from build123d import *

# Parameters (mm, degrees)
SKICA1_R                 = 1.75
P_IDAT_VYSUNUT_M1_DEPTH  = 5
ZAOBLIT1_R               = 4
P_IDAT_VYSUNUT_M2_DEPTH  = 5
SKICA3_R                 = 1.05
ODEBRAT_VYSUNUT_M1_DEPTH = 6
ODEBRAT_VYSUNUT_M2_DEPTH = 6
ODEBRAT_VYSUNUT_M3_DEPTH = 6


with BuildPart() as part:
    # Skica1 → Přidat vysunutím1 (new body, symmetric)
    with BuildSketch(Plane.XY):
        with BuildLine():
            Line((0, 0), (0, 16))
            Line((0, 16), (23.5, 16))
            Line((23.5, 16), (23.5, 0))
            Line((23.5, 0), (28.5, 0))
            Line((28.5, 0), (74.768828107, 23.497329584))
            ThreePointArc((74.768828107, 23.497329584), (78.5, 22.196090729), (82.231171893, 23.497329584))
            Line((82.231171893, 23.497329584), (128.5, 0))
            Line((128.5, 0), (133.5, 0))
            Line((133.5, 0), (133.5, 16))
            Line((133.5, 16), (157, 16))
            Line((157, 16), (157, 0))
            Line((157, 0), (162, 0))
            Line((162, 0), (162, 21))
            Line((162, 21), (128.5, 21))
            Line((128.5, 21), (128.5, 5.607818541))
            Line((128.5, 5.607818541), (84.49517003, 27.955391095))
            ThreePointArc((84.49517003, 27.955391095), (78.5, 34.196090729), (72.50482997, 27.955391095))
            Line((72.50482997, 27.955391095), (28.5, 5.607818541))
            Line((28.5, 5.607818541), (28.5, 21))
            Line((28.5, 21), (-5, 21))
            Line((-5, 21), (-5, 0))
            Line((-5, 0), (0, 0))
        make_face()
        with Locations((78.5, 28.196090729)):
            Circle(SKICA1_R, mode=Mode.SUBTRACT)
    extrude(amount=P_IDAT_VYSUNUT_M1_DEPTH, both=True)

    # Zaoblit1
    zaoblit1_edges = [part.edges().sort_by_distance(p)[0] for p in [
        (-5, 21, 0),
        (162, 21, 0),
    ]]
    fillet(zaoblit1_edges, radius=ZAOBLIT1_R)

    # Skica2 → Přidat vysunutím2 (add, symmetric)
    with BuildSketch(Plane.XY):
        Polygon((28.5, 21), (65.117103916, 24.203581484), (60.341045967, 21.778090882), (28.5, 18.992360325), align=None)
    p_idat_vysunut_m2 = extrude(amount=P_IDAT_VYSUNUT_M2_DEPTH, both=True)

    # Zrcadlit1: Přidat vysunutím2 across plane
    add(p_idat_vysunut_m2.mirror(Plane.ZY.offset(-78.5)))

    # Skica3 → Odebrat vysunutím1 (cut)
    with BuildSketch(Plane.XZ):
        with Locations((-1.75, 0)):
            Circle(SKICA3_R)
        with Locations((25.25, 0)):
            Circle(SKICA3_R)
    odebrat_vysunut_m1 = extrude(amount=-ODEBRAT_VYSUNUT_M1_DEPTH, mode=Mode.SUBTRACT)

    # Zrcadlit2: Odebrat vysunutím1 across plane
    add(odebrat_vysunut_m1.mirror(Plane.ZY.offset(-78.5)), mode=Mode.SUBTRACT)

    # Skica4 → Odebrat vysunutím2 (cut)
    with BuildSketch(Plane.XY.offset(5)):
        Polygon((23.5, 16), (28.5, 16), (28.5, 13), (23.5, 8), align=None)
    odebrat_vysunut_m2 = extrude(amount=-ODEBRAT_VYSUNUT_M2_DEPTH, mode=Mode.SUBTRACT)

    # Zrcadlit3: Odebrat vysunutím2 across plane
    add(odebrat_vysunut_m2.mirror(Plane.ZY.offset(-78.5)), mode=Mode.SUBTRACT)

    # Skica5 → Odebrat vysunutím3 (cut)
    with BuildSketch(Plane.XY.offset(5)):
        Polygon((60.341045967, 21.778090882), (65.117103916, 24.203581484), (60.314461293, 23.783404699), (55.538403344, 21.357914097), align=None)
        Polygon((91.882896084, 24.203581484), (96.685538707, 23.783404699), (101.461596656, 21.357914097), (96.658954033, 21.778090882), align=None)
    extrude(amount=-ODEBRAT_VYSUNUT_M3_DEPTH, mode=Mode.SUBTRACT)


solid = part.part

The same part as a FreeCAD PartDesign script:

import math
import FreeCAD as App
import Part
import Sketcher
from FreeCAD import Vector
Q = App.Units.Quantity


def edges_at(feature, points):
    """Names of the edges that pass closest to the given points."""
    edges = feature.Shape.Edges
    near = lambda p: min(range(len(edges)), key=lambda i: edges[i].distToShape(Part.Vertex(*p))[0])
    return sorted({f"Edge{near(p) + 1}" for p in points})


def add_polygon(sketch, points):
    """Adds a closed chain of lines whose ends are joined by coincident constraints."""
    first, n = sketch.GeometryCount, len(points)
    for a, b in zip(points, points[1:] + points[:1]):
        sketch.addGeometry(Part.LineSegment(App.Vector(*a, 0), App.Vector(*b, 0)), False)
    for i in range(n):
        sketch.addConstraint(Sketcher.Constraint("Coincident", first + i, 2, first + (i + 1) % n, 1))

doc = App.newDocument("Part")
body = doc.addObject("PartDesign::Body", "Body")

# Sketch on XY plane
sketch1 = body.newObject("Sketcher::SketchObject", "Sketch")
sketch1.AttachmentSupport = (doc.getObject("XY_Plane"), [""])
sketch1.MapMode = "FlatFace"
sketch1.addGeometry(Part.LineSegment(Vector(0, 0, 0), Vector(0, 16, 0)), False)
sketch1.addGeometry(Part.LineSegment(Vector(0, 16, 0), Vector(23.5, 16, 0)), False)
sketch1.addGeometry(Part.LineSegment(Vector(23.5, 16, 0), Vector(23.5, 0, 0)), False)
sketch1.addGeometry(Part.LineSegment(Vector(23.5, 0, 0), Vector(28.5, 0, 0)), False)
sketch1.addGeometry(Part.LineSegment(Vector(28.5, 0, 0), Vector(74.768828, 23.49733, 0)), False)
sketch1.addGeometry(Part.ArcOfCircle(Part.Circle(Vector(78.5, 28.196091, 0), Vector(0, 0, 1), 6), math.radians(-128.452234), math.radians(-51.547766)), False)
sketch1.addGeometry(Part.LineSegment(Vector(82.231172, 23.49733, 0), Vector(128.5, 0, 0)), False)
sketch1.addGeometry(Part.LineSegment(Vector(128.5, 0, 0), Vector(133.5, 0, 0)), False)
sketch1.addGeometry(Part.LineSegment(Vector(133.5, 0, 0), Vector(133.5, 16, 0)), False)
sketch1.addGeometry(Part.LineSegment(Vector(133.5, 16, 0), Vector(157, 16, 0)), False)
sketch1.addGeometry(Part.LineSegment(Vector(157, 16, 0), Vector(157, 0, 0)), False)
sketch1.addGeometry(Part.LineSegment(Vector(157, 0, 0), Vector(162, 0, 0)), False)
sketch1.addGeometry(Part.LineSegment(Vector(162, 0, 0), Vector(162, 21, 0)), False)
sketch1.addGeometry(Part.LineSegment(Vector(162, 21, 0), Vector(128.5, 21, 0)), False)
sketch1.addGeometry(Part.LineSegment(Vector(128.5, 21, 0), Vector(128.5, 5.607819, 0)), False)
sketch1.addGeometry(Part.LineSegment(Vector(128.5, 5.607819, 0), Vector(84.49517, 27.955391, 0)), False)
sketch1.addGeometry(Part.ArcOfCircle(Part.Circle(Vector(78.5, 28.196091, 0), Vector(0, 0, 1), 6), math.radians(-2.299129), math.radians(182.299129)), False)
sketch1.addGeometry(Part.LineSegment(Vector(72.50483, 27.955391, 0), Vector(28.5, 5.607819, 0)), False)
sketch1.addGeometry(Part.LineSegment(Vector(28.5, 5.607819, 0), Vector(28.5, 21, 0)), False)
sketch1.addGeometry(Part.LineSegment(Vector(28.5, 21, 0), Vector(-5, 21, 0)), False)
sketch1.addGeometry(Part.LineSegment(Vector(-5, 21, 0), Vector(-5, 0, 0)), False)
sketch1.addGeometry(Part.LineSegment(Vector(-5, 0, 0), Vector(0, 0, 0)), False)
sketch1.addGeometry(Part.Circle(Vector(78.5, 28.196091, 0), Vector(0, 0, 1), 1.75), False)
sketch1.addConstraint(Sketcher.Constraint("Coincident", 0, 2, 1, 1))
sketch1.addConstraint(Sketcher.Constraint("Coincident", 1, 2, 2, 1))
sketch1.addConstraint(Sketcher.Constraint("Coincident", 2, 2, 3, 1))
sketch1.addConstraint(Sketcher.Constraint("Coincident", 3, 2, 4, 1))
sketch1.addConstraint(Sketcher.Constraint("Coincident", 4, 2, 5, 1))
sketch1.addConstraint(Sketcher.Constraint("Coincident", 5, 2, 6, 1))
sketch1.addConstraint(Sketcher.Constraint("Coincident", 6, 2, 7, 1))
sketch1.addConstraint(Sketcher.Constraint("Coincident", 7, 2, 8, 1))
sketch1.addConstraint(Sketcher.Constraint("Coincident", 8, 2, 9, 1))
sketch1.addConstraint(Sketcher.Constraint("Coincident", 9, 2, 10, 1))
sketch1.addConstraint(Sketcher.Constraint("Coincident", 10, 2, 11, 1))
sketch1.addConstraint(Sketcher.Constraint("Coincident", 11, 2, 12, 1))
sketch1.addConstraint(Sketcher.Constraint("Coincident", 12, 2, 13, 1))
sketch1.addConstraint(Sketcher.Constraint("Coincident", 13, 2, 14, 1))
sketch1.addConstraint(Sketcher.Constraint("Coincident", 14, 2, 15, 1))
sketch1.addConstraint(Sketcher.Constraint("Coincident", 15, 2, 16, 1))
sketch1.addConstraint(Sketcher.Constraint("Coincident", 16, 2, 17, 1))
sketch1.addConstraint(Sketcher.Constraint("Coincident", 17, 2, 18, 1))
sketch1.addConstraint(Sketcher.Constraint("Coincident", 18, 2, 19, 1))
sketch1.addConstraint(Sketcher.Constraint("Coincident", 19, 2, 20, 1))
sketch1.addConstraint(Sketcher.Constraint("Coincident", 20, 2, 21, 1))
sketch1.addConstraint(Sketcher.Constraint("Coincident", 21, 2, 0, 1))
sketch1.addConstraint(Sketcher.Constraint("Vertical", 0))
sketch1.addConstraint(Sketcher.Constraint("Horizontal", 1))
sketch1.addConstraint(Sketcher.Constraint("Vertical", 2))
sketch1.addConstraint(Sketcher.Constraint("Horizontal", 3))
sketch1.addConstraint(Sketcher.Constraint("Horizontal", 7))
sketch1.addConstraint(Sketcher.Constraint("Vertical", 8))
sketch1.addConstraint(Sketcher.Constraint("Horizontal", 9))
sketch1.addConstraint(Sketcher.Constraint("Vertical", 10))
sketch1.addConstraint(Sketcher.Constraint("Horizontal", 11))
sketch1.addConstraint(Sketcher.Constraint("Vertical", 12))
sketch1.addConstraint(Sketcher.Constraint("Horizontal", 13))
sketch1.addConstraint(Sketcher.Constraint("Vertical", 14))
sketch1.addConstraint(Sketcher.Constraint("Vertical", 18))
sketch1.addConstraint(Sketcher.Constraint("Horizontal", 19))
sketch1.addConstraint(Sketcher.Constraint("Vertical", 20))
sketch1.addConstraint(Sketcher.Constraint("Horizontal", 21))
sketch1.addConstraint(Sketcher.Constraint("Coincident", 21, 2, -1, 1))
sketch1.addConstraint(Sketcher.Constraint("Coincident", 16, 3, 5, 3))
sketch1.addConstraint(Sketcher.Constraint("Coincident", 22, 3, 5, 3))
sketch1.addConstraint(Sketcher.Constraint("Equal", 5, 16))
sketch1.addConstraint(Sketcher.Constraint("PointOnObject", 2, 2, -1))
sketch1.addConstraint(Sketcher.Constraint("PointOnObject", 6, 2, -1))
sketch1.addConstraint(Sketcher.Constraint("PointOnObject", 10, 2, -1))
sketch1.addConstraint(Sketcher.Constraint("Parallel", 6, 15))
sketch1.addConstraint(Sketcher.Constraint("Parallel", 4, 17))
sketch1.addConstraint(Sketcher.Constraint("Horizontal", 4, 2, 5, 2))
sketch1.addConstraint(Sketcher.Constraint("Horizontal", 1, 2, 8, 2))
sketch1.addConstraint(Sketcher.Constraint("Horizontal", 15, 2, 16, 2))
sketch1.addConstraint(Sketcher.Constraint("Horizontal", 14, 2, 17, 2))
sketch1.addConstraint(Sketcher.Constraint("Horizontal", 13, 2, 18, 2))
sketch1.addConstraint(Sketcher.Constraint("Vertical", 6, 2, 13, 2))
sketch1.addConstraint(Sketcher.Constraint("Vertical", 3, 2, 17, 2))
sketch1.addConstraint(Sketcher.Constraint("Equal", 3, 7))
sketch1.addConstraint(Sketcher.Constraint("Equal", 1, 9))
sketch1.addConstraint(Sketcher.Constraint("Equal", 7, 11))
sketch1.addConstraint(Sketcher.Constraint("Equal", 13, 19))
sketch1.addConstraint(Sketcher.Constraint("Radius", 5, Q("6 mm")))
sketch1.addConstraint(Sketcher.Constraint("Diameter", 22, Q("3.5 mm")))
sketch1.addConstraint(Sketcher.Constraint("DistanceX", 3, 1, 3, 2, Q("5 mm")))
sketch1.addConstraint(Sketcher.Constraint("DistanceY", 0, 1, 0, 2, Q("16 mm")))
sketch1.addConstraint(Sketcher.Constraint("DistanceY", 12, 1, 12, 2, Q("21 mm")))
sketch1.addConstraint(Sketcher.Constraint("DistanceX", 1, 1, 1, 2, Q("23.5 mm")))
sketch1.addConstraint(Sketcher.Constraint("DistanceX", -1, 1, 9, 2, Q("157 mm")))
sketch1.addConstraint(Sketcher.Constraint("DistanceX", 5, 2, 15, 2, Q("2.263998 mm")))
sketch1.addConstraint(Sketcher.Constraint("DistanceY", 14, 2, 14, 1, Q("15.392181 mm")))
sketch1.addConstraint(Sketcher.Constraint("DistanceY", 15, 2, 5, 3, Q("0.2407 mm")))
pad1 = body.newObject("PartDesign::Pad", "Pad")
pad1.Profile = sketch1
pad1.Length = 10
pad1.Midplane = True
doc.recompute()

fillet = body.newObject("PartDesign::Fillet", "Fillet")
fillet.Base = (pad1, edges_at(pad1, [(-5, 21, 0), (162, 21, 0)]))
fillet.Radius = 4

# Sketch on XY plane
sketch2 = body.newObject("Sketcher::SketchObject", "Sketch001")
sketch2.AttachmentSupport = (doc.getObject("XY_Plane"), [""])
sketch2.MapMode = "FlatFace"
add_polygon(sketch2, [(65.1, 24.2), (28.5, 21), (28.5, 19), (60.3, 21.8)])  # lines 0-3
sketch2.addConstraint(Sketcher.Constraint("Vertical", 1))
sketch2.addConstraint(Sketcher.Constraint("Parallel", 0, 2))
sketch2.addConstraint(Sketcher.Constraint("Angle", 0, Q("-175 deg")))
sketch2.addConstraint(Sketcher.Constraint("DistanceY", -1, 1, 0, 2, Q("21 mm")))
sketch2.addConstraint(Sketcher.Constraint("DistanceX", -1, 1, 0, 2, Q("28.5 mm")))
sketch2.addConstraint(Sketcher.Constraint("DistanceY", 1, 2, 1, 1, Q("2.00764 mm")))
sketch2.addConstraint(Sketcher.Constraint("DistanceY", -1, 1, 2, 2, Q("21.778091 mm")))
sketch2.addConstraint(Sketcher.Constraint("DistanceY", -1, 1, 3, 2, Q("24.203581 mm")))
pad2 = body.newObject("PartDesign::Pad", "Pad001")
pad2.Profile = sketch2
pad2.Length = 10
pad2.Midplane = True
doc.recompute()

datumplane = body.newObject("PartDesign::Plane", "DatumPlane")
datumplane.AttachmentSupport = (doc.getObject("YZ_Plane"), [""])
datumplane.MapMode = "FlatFace"
datumplane.AttachmentOffset = App.Placement(Vector(0, 0, 78.5), App.Rotation())
mirrored = body.newObject("PartDesign::Mirrored", "Mirrored")
mirrored.Originals = [pad2]
mirrored.MirrorPlane = (datumplane, [""])
body.Tip = mirrored

# Sketch on XZ plane
sketch3 = body.newObject("Sketcher::SketchObject", "Sketch002")
sketch3.AttachmentSupport = (doc.getObject("XZ_Plane"), [""])
sketch3.MapMode = "FlatFace"
sketch3.addGeometry(Part.Circle(Vector(-1.8, 0, 0), Vector(0, 0, 1), 1.1), False)
sketch3.addGeometry(Part.Circle(Vector(25.2, 0, 0), Vector(0, 0, 1), 1.1), False)
sketch3.addConstraint(Sketcher.Constraint("Equal", 0, 1))
sketch3.addConstraint(Sketcher.Constraint("PointOnObject", 0, 3, -1))
sketch3.addConstraint(Sketcher.Constraint("PointOnObject", 1, 3, -1))
sketch3.addConstraint(Sketcher.Constraint("Diameter", 0, Q("2.1 mm")))
sketch3.addConstraint(Sketcher.Constraint("DistanceX", 0, 3, 1, 3, Q("27 mm")))
sketch3.addConstraint(Sketcher.Constraint("DistanceX", 0, 3, -1, 1, Q("1.75 mm")))
pocket1 = body.newObject("PartDesign::Pocket", "Pocket")
pocket1.Profile = sketch3
pocket1.Length = 6
doc.recompute()

datumplane2 = body.newObject("PartDesign::Plane", "DatumPlane001")
datumplane2.AttachmentSupport = (doc.getObject("YZ_Plane"), [""])
datumplane2.MapMode = "FlatFace"
datumplane2.AttachmentOffset = App.Placement(Vector(0, 0, 78.5), App.Rotation())
mirrored2 = body.newObject("PartDesign::Mirrored", "Mirrored001")
mirrored2.Originals = [pocket1]
mirrored2.MirrorPlane = (datumplane2, [""])
body.Tip = mirrored2

# Sketch on XY plane
sketch4 = body.newObject("Sketcher::SketchObject", "Sketch003")
sketch4.AttachmentSupport = (doc.getObject("XY_Plane"), [""])
sketch4.MapMode = "FlatFace"
sketch4.AttachmentOffset = App.Placement(Vector(0, 0, 5), App.Rotation())
add_polygon(sketch4, [(28.5, 16), (23.5, 16), (23.5, 8), (28.5, 13)])  # lines 0-3
sketch4.addConstraint(Sketcher.Constraint("Horizontal", 0))
sketch4.addConstraint(Sketcher.Constraint("Vertical", 1))
sketch4.addConstraint(Sketcher.Constraint("Vertical", 3))
sketch4.addConstraint(Sketcher.Constraint("DistanceX", 0, 2, 0, 1, Q("5 mm")))
sketch4.addConstraint(Sketcher.Constraint("DistanceY", 1, 2, 1, 1, Q("8 mm")))
sketch4.addConstraint(Sketcher.Constraint("DistanceY", 3, 1, 3, 2, Q("3 mm")))
sketch4.addConstraint(Sketcher.Constraint("DistanceY", -1, 1, 0, 2, Q("16 mm")))
sketch4.addConstraint(Sketcher.Constraint("DistanceX", -1, 1, 0, 2, Q("23.5 mm")))
pocket2 = body.newObject("PartDesign::Pocket", "Pocket001")
pocket2.Profile = sketch4
pocket2.Length = 6
doc.recompute()

datumplane3 = body.newObject("PartDesign::Plane", "DatumPlane002")
datumplane3.AttachmentSupport = (doc.getObject("YZ_Plane"), [""])
datumplane3.MapMode = "FlatFace"
datumplane3.AttachmentOffset = App.Placement(Vector(0, 0, 78.5), App.Rotation())
mirrored3 = body.newObject("PartDesign::Mirrored", "Mirrored002")
mirrored3.Originals = [pocket2]
mirrored3.MirrorPlane = (datumplane3, [""])
body.Tip = mirrored3

# Sketch on XY plane
sketch5 = body.newObject("Sketcher::SketchObject", "Sketch004")
sketch5.AttachmentSupport = (doc.getObject("XY_Plane"), [""])
sketch5.MapMode = "FlatFace"
sketch5.AttachmentOffset = App.Placement(Vector(0, 0, 5), App.Rotation())
add_polygon(sketch5, [(60.3, 21.8), (65.1, 24.2), (60.3, 23.8), (55.5, 21.4)])  # lines 0-3
add_polygon(sketch5, [(96.7, 23.8), (91.9, 24.2), (96.7, 21.8), (101.5, 21.4)])  # lines 4-7
sketch5.addConstraint(Sketcher.Constraint("Parallel", 0, 2))
sketch5.addConstraint(Sketcher.Constraint("Parallel", 1, 3))
sketch5.addConstraint(Sketcher.Constraint("Parallel", 4, 6))
sketch5.addConstraint(Sketcher.Constraint("Parallel", 5, 7))
sketch5.addConstraint(Sketcher.Constraint("Horizontal", 0, 2, 4, 2))
sketch5.addConstraint(Sketcher.Constraint("Horizontal", 3, 2, 5, 2))
sketch5.addConstraint(Sketcher.Constraint("Horizontal", 2, 2, 6, 2))
sketch5.addConstraint(Sketcher.Constraint("Equal", 3, 4))
sketch5.addConstraint(Sketcher.Constraint("Equal", 2, 5))
sketch5.addConstraint(Sketcher.Constraint("Angle", 1, Q("-175 deg")))
sketch5.addConstraint(Sketcher.Constraint("DistanceX", 2, 2, 0, 2, Q("9.578701 mm")))
sketch5.addConstraint(Sketcher.Constraint("DistanceY", -1, 1, 0, 2, Q("24.203581 mm")))
sketch5.addConstraint(Sketcher.Constraint("DistanceX", -1, 1, 1, 2, Q("60.314461 mm")))
sketch5.addConstraint(Sketcher.Constraint("DistanceY", -1, 1, 3, 2, Q("21.778091 mm")))
sketch5.addConstraint(Sketcher.Constraint("DistanceX", -1, 1, 7, 2, Q("96.685539 mm")))
sketch5.addConstraint(Sketcher.Constraint("DistanceX", 3, 2, 4, 2, Q("31.54185 mm")))
pocket3 = body.newObject("PartDesign::Pocket", "Pocket002")
pocket3.Profile = sketch5
pocket3.Length = 6

doc.recompute()
